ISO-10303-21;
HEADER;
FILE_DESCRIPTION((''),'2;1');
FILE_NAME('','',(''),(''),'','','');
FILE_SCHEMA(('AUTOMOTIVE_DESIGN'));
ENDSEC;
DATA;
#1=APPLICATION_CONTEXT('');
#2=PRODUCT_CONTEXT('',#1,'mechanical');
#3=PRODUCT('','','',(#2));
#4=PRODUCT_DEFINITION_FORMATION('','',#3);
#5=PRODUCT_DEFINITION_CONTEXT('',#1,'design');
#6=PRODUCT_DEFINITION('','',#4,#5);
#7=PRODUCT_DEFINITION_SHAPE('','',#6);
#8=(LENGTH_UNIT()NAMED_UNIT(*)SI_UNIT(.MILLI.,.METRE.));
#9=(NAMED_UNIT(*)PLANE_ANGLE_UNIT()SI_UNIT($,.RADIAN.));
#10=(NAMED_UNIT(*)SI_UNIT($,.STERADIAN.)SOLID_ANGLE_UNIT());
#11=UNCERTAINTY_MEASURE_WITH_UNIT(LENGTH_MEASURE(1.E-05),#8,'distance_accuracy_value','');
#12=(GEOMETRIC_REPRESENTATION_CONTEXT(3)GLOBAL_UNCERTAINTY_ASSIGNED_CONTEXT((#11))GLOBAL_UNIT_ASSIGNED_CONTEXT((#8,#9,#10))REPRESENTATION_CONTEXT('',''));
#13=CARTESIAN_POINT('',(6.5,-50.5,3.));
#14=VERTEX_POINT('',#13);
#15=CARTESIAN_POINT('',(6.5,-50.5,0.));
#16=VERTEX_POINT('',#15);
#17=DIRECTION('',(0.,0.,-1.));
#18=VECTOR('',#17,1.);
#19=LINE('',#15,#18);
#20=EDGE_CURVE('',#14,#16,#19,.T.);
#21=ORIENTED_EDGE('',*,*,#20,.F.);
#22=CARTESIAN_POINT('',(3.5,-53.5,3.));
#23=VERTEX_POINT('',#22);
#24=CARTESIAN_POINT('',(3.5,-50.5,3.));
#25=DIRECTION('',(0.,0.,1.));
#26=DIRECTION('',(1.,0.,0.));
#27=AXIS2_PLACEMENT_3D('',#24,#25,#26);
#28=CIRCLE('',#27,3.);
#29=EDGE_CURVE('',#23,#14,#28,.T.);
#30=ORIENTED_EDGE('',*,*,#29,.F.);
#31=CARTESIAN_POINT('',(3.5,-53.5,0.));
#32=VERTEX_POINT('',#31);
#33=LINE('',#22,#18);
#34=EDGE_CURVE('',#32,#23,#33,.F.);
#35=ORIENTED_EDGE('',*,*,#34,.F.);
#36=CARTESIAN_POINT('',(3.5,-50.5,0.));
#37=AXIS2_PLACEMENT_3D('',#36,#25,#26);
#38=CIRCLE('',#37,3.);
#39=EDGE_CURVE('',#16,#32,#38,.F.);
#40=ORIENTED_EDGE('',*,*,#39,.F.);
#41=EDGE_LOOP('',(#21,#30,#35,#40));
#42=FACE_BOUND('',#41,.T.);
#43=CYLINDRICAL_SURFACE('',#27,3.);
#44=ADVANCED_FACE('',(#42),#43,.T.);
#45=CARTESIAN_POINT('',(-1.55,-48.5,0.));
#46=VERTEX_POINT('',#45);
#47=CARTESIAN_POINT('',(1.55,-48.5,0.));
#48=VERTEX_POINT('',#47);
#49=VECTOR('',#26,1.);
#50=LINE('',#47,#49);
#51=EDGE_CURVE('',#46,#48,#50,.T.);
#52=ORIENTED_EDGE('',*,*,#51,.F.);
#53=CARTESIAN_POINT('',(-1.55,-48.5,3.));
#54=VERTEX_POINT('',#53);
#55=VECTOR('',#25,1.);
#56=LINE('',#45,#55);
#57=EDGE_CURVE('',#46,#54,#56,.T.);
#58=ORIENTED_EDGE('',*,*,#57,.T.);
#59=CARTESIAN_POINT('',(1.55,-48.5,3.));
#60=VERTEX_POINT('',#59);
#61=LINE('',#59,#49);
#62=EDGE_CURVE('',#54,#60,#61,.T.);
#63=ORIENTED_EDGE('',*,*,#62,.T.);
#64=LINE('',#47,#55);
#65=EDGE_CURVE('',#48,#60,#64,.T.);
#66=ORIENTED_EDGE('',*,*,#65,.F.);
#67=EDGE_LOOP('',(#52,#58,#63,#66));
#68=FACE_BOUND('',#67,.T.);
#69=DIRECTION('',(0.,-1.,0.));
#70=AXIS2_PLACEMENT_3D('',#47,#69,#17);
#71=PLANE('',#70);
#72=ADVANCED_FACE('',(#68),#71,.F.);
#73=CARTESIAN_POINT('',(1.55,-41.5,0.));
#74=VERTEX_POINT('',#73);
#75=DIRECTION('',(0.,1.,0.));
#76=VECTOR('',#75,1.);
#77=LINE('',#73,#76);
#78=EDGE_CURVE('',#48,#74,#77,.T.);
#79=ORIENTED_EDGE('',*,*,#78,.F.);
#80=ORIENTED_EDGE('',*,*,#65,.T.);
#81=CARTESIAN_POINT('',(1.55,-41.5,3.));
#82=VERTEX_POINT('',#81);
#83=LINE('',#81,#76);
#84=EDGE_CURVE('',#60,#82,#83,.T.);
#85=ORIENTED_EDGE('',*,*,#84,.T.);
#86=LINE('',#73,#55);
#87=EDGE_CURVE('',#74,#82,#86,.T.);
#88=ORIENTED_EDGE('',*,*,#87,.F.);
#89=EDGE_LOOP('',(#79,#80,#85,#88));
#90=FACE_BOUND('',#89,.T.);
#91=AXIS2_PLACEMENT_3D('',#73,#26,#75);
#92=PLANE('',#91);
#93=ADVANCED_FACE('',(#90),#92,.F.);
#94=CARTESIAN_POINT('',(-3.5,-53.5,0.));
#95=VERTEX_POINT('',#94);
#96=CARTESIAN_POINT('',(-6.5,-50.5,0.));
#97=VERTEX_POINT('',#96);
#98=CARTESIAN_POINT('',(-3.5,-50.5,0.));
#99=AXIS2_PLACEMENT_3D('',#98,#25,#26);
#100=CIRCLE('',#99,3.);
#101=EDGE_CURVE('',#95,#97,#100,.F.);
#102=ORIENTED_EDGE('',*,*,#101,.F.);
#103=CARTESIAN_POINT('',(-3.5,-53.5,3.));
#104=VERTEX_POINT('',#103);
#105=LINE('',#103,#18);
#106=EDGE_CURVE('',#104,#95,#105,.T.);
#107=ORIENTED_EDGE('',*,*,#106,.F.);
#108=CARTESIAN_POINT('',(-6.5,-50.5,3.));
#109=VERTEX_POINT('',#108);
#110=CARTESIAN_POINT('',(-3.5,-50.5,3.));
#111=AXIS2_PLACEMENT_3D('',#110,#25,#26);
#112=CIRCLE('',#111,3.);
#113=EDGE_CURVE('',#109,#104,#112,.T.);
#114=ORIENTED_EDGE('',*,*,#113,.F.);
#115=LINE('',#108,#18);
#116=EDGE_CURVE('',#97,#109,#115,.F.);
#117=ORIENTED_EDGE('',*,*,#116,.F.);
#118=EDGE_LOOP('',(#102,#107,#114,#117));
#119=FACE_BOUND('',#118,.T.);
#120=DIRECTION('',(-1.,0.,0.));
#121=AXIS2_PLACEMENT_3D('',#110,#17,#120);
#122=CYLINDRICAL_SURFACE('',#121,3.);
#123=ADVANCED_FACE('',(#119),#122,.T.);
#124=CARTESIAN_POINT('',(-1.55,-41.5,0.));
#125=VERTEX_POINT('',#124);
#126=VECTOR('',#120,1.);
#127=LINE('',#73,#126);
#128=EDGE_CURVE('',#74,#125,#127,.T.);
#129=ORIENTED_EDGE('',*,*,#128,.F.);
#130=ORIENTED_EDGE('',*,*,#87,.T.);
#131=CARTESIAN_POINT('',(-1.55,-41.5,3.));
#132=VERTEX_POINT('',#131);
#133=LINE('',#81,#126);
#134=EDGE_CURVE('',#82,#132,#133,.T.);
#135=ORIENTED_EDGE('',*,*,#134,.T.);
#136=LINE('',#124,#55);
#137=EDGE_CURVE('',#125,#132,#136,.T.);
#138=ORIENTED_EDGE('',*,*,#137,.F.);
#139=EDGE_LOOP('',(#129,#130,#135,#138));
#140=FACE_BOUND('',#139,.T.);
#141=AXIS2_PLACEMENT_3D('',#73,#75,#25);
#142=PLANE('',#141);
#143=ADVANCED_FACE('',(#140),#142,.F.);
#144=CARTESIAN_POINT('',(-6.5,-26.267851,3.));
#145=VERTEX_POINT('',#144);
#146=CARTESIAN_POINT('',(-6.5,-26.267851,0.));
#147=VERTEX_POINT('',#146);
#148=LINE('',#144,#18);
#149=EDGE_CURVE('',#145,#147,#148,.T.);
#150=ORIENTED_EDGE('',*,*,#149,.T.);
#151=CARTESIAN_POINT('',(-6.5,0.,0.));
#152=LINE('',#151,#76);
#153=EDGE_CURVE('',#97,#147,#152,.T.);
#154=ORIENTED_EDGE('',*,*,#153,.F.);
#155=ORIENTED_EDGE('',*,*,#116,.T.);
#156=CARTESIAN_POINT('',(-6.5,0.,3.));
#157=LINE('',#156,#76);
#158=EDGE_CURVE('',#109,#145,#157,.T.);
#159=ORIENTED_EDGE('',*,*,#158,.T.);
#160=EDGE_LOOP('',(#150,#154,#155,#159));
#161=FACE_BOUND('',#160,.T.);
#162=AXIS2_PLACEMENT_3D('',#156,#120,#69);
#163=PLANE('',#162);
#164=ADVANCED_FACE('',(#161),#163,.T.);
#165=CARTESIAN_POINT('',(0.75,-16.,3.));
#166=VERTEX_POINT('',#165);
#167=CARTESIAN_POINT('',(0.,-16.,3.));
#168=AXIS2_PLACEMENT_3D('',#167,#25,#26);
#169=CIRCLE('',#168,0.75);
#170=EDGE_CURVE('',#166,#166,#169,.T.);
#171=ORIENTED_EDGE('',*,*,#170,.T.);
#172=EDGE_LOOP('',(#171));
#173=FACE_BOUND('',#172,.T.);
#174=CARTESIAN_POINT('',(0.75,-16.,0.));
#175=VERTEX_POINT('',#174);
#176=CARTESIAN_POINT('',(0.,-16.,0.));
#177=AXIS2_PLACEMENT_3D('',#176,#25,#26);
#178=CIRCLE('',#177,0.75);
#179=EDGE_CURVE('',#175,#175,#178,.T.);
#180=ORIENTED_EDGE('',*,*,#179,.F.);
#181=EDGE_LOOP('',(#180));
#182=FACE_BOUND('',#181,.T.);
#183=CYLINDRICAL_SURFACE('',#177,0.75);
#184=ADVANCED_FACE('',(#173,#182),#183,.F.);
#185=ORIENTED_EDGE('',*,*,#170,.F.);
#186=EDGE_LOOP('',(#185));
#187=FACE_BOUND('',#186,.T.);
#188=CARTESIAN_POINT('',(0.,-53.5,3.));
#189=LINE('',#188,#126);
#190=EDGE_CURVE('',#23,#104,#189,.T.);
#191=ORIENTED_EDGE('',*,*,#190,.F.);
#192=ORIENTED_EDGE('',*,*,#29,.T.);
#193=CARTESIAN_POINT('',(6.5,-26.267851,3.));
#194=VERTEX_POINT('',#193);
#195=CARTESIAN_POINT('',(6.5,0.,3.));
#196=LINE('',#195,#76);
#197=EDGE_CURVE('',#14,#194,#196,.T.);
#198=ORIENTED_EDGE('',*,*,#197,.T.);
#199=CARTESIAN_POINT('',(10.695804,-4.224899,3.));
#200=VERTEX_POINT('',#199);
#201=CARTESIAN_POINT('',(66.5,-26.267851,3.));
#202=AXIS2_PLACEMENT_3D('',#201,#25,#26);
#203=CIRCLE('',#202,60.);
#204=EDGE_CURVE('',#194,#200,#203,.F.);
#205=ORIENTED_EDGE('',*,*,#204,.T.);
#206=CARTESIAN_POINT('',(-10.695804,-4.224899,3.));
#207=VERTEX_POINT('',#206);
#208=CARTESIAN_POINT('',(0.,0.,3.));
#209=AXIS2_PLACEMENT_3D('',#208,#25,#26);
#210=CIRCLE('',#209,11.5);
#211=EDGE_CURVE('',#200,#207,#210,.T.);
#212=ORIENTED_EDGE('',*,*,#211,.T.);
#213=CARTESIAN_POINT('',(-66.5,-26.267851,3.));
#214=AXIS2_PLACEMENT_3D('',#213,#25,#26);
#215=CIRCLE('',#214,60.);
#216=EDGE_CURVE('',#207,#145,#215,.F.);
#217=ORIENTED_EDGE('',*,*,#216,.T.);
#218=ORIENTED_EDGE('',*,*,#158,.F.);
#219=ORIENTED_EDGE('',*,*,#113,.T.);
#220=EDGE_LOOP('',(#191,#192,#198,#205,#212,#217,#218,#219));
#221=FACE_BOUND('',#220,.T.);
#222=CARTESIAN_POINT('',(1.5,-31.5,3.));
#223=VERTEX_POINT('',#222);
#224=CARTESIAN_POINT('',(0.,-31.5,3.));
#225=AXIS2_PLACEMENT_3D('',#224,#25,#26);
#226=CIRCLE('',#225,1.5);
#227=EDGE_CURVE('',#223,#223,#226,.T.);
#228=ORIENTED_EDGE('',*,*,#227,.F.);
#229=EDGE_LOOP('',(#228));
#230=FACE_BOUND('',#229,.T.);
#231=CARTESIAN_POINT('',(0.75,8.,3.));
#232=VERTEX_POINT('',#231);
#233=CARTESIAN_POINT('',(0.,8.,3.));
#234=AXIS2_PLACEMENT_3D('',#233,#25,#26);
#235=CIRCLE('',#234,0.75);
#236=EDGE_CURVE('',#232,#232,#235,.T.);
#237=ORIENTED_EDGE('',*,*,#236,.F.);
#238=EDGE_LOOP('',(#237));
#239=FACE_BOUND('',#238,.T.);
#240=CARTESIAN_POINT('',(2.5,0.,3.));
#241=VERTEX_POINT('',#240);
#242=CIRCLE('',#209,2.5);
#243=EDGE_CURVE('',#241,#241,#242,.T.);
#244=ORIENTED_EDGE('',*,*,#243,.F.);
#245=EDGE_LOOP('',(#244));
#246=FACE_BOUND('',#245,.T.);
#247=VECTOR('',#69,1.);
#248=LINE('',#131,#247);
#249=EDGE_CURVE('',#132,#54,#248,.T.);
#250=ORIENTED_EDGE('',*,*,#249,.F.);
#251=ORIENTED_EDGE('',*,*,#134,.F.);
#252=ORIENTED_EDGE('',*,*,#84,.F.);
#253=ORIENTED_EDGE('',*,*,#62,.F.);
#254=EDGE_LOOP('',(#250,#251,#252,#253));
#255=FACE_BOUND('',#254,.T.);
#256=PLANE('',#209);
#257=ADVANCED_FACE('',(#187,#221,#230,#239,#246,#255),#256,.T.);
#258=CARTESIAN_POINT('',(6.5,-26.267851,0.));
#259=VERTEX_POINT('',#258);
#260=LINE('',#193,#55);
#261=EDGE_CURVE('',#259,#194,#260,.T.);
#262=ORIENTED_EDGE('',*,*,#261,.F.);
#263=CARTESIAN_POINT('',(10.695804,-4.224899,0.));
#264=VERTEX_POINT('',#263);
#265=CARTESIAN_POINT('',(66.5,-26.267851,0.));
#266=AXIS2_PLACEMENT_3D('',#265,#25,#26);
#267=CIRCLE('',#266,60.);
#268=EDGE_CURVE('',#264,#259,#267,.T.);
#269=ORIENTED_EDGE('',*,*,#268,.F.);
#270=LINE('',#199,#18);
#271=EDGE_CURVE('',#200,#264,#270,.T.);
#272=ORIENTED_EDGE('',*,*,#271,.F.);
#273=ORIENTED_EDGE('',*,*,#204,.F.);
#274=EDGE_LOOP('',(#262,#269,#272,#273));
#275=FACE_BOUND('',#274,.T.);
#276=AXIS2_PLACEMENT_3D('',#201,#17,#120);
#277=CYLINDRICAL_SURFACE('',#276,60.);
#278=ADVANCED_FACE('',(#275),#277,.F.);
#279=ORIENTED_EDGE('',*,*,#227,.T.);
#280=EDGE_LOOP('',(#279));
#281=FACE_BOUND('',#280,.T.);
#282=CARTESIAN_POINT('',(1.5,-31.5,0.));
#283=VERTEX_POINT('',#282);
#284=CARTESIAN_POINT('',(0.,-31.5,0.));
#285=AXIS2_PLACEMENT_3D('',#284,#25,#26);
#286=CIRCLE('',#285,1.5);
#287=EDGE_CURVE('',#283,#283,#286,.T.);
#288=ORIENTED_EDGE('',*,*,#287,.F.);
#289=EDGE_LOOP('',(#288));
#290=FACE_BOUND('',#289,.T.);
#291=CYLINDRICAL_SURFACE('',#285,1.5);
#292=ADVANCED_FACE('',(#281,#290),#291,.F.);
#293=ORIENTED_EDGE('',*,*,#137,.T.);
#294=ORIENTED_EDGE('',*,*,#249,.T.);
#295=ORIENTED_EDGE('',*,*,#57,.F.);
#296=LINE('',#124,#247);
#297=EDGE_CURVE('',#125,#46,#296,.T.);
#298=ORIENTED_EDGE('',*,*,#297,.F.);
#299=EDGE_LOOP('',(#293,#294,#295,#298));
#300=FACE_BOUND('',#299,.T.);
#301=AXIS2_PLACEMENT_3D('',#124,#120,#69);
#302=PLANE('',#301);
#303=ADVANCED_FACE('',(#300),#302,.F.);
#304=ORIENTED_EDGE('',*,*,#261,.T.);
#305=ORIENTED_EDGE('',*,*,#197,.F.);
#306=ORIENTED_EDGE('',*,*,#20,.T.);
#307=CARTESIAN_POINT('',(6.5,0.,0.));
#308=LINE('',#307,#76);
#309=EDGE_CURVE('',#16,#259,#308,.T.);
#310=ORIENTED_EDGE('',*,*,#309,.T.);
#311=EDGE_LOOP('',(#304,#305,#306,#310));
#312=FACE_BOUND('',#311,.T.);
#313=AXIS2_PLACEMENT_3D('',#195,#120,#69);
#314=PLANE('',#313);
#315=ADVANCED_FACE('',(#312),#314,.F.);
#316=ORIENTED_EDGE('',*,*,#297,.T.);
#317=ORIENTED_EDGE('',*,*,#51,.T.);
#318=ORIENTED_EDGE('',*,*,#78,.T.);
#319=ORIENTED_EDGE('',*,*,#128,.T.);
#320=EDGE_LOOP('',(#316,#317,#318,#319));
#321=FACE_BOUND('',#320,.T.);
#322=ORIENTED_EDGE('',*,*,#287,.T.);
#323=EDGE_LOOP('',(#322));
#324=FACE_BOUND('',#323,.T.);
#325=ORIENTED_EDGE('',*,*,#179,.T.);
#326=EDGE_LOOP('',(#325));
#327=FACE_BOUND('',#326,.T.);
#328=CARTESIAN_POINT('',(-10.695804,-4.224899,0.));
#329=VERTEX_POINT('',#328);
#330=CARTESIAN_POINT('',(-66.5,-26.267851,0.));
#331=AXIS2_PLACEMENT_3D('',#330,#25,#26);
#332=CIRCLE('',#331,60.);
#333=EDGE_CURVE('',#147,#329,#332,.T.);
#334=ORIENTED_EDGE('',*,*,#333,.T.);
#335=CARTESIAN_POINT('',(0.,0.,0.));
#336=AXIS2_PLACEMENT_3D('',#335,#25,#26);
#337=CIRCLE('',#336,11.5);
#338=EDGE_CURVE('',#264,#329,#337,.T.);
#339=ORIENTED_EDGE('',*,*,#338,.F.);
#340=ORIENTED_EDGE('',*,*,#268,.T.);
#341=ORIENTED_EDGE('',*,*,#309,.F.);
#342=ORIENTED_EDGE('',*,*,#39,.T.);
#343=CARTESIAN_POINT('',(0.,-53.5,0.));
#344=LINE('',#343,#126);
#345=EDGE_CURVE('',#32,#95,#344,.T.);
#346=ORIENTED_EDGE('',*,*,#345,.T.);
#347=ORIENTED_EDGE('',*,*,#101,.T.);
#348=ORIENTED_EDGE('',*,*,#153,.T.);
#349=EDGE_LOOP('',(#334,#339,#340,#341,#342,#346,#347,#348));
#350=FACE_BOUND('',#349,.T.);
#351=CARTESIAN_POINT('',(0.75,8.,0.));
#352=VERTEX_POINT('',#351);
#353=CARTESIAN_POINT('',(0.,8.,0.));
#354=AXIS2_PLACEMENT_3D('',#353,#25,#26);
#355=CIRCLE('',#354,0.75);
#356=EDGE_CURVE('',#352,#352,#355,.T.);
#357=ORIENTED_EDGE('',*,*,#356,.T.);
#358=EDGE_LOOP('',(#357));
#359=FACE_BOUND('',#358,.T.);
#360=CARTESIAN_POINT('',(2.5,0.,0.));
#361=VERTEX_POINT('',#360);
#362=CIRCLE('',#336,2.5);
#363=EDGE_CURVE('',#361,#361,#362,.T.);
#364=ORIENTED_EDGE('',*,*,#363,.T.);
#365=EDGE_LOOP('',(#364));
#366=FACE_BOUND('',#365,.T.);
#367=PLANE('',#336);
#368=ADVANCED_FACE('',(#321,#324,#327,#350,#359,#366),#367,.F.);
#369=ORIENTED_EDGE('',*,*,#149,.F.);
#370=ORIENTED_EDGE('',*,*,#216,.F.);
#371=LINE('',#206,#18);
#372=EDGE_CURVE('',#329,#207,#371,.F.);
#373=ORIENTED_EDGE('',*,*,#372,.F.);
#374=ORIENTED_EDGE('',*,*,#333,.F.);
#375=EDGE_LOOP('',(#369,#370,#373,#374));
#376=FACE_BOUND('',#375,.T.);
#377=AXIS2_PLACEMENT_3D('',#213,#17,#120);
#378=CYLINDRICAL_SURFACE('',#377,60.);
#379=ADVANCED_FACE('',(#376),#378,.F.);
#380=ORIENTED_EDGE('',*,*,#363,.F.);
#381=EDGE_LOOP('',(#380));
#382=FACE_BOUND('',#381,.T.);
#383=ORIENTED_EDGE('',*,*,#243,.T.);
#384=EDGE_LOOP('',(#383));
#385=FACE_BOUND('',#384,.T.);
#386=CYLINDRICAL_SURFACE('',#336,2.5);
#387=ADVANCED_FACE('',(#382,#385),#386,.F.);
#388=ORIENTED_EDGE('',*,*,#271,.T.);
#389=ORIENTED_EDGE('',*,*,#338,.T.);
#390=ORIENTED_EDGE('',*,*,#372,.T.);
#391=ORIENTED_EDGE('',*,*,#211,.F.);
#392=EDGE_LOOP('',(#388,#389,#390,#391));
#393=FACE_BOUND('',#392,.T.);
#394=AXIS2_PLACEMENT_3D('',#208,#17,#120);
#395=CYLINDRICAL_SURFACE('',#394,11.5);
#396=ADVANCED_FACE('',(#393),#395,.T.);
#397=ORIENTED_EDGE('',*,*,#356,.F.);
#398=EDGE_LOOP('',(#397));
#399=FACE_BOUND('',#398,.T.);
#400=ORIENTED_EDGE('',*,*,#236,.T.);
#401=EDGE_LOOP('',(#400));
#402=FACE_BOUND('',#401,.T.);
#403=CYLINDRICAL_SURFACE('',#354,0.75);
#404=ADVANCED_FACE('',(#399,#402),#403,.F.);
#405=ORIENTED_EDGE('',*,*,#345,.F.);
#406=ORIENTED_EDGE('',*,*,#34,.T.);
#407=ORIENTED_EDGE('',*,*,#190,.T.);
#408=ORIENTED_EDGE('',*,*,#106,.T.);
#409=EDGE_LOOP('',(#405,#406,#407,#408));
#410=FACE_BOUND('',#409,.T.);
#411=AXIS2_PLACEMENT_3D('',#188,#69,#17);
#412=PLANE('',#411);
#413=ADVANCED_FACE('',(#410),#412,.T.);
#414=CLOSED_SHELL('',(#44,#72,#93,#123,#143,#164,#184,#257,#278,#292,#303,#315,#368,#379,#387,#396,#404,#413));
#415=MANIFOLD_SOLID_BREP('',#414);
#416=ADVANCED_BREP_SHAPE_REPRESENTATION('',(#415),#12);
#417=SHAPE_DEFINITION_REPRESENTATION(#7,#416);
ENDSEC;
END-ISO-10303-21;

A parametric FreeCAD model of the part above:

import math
import FreeCAD as App
import Part
import Sketcher
from FreeCAD import Vector
Q = App.Units.Quantity


def edges_at(feature, points):
    """Names of the edges that pass closest to the given points."""
    edges = feature.Shape.Edges
    near = lambda p: min(range(len(edges)), key=lambda i: edges[i].distToShape(Part.Vertex(*p))[0])
    return sorted({f"Edge{near(p) + 1}" for p in points})

doc = App.newDocument("Part")
params = doc.addObject("Spreadsheet::Sheet", "Params")
for row, (alias, value) in enumerate([
    ("sketch1_radius", "11.5 mm"),
    ("sketch1_width", "13 mm"),
    ("pad1_length", "3 mm"),
    ("sketch2_diameter", "5 mm"),
    ("sketch2_diameter2", "3 mm"),
    ("sketch2_height", "7 mm"),
    ("sketch2_width", "3.1 mm"),
    ("pocket1_length", "3 mm"),
    ("fillet_radius", "60 mm"),
    ("fillet2_radius", "3 mm"),
    ("sketch3_diameter", "1.5 mm"),
    ("pocket2_length", "3 mm"),
], start=1):
    params.set(f"A{row}", alias)
    params.set(f"B{row}", "=" + value)
    params.setAlias(f"B{row}", alias)

body = doc.addObject("PartDesign::Body", "Body")

sketch1 = body.newObject("Sketcher::SketchObject", "Sketch")
sketch1.AttachmentSupport = (doc.getObject("XY_Plane"), [""])
sketch1.MapMode = "FlatFace"
sketch1.addGeometry([
    Part.LineSegment(Vector(6, -54, 0), Vector(6, -9, 0)),
    Part.ArcOfCircle(Part.Circle(Vector(0, 0, 0), Vector(0, 0, 1), 12), math.radians(-56), math.radians(0)),
    Part.ArcOfCircle(Part.Circle(Vector(0, 0, 0), Vector(0, 0, 1), 12), math.radians(0), math.radians(236)),
    Part.LineSegment(Vector(-6, -9, 0), Vector(-6, -54, 0)),
    Part.LineSegment(Vector(-6, -54, 0), Vector(6, -54, 0)),
], False)
sketch1.addConstraint([
    Sketcher.Constraint("Coincident", 0, 2, 1, 1),
    Sketcher.Constraint("Tangent", 1, 2, 2, 1),
    Sketcher.Constraint("Coincident", 2, 2, 3, 1),
    Sketcher.Constraint("Coincident", 3, 2, 4, 1),
    Sketcher.Constraint("Coincident", 4, 2, 0, 1),
    Sketcher.Constraint("Vertical", 0),
    Sketcher.Constraint("Vertical", 3),
    Sketcher.Constraint("Horizontal", 4),
    Sketcher.Constraint("Coincident", 1, 3, -1, 1),
    Sketcher.Constraint("Equal", 1, 2),
    Sketcher.Constraint("PointOnObject", 1, 2, -1),
    Sketcher.Constraint("Horizontal", 0, 2, 2, 2),
    Sketcher.Constraint("Radius", 1, Q("11.5 mm")),
    Sketcher.Constraint("DistanceX", 4, 1, 4, 2, Q("13 mm")),
    Sketcher.Constraint("DistanceY", 3, 2, -1, 1, Q("53.5 mm")),
])
sketch1.setExpression("Constraints[12]", "Params.sketch1_radius")
sketch1.setExpression("Constraints[13]", "Params.sketch1_width")
pad1 = body.newObject("PartDesign::Pad", "Pad")
pad1.Profile = sketch1
pad1.setExpression("Length", "Params.pad1_length")

sketch2 = body.newObject("Sketcher::SketchObject", "Sketch001")
sketch2.AttachmentSupport = (doc.getObject("XY_Plane"), [""])
sketch2.MapMode = "FlatFace"
sketch2.AttachmentOffset = App.Placement(Vector(0, 0, 3), App.Rotation())
sketch2.addGeometry([
    Part.Circle(Vector(0, 0, 0), Vector(0, 0, 1), 2.5),
    Part.Circle(Vector(0, -31.5, 0), Vector(0, 0, 1), 1.5),
    Part.LineSegment(Vector(-1.6, -41.5, 0), Vector(-1.6, -48.5, 0)),
    Part.LineSegment(Vector(-1.6, -48.5, 0), Vector(1.6, -48.5, 0)),
    Part.LineSegment(Vector(1.6, -48.5, 0), Vector(1.6, -41.5, 0)),
    Part.LineSegment(Vector(1.6, -41.5, 0), Vector(-1.6, -41.5, 0)),
], False)
sketch2.addConstraint([
    Sketcher.Constraint("Coincident", 2, 2, 3, 1),
    Sketcher.Constraint("Coincident", 3, 2, 4, 1),
    Sketcher.Constraint("Coincident", 4, 2, 5, 1),
    Sketcher.Constraint("Coincident", 5, 2, 2, 1),
    Sketcher.Constraint("Vertical", 2),
    Sketcher.Constraint("Horizontal", 3),
    Sketcher.Constraint("Vertical", 4),
    Sketcher.Constraint("Horizontal", 5),
    Sketcher.Constraint("Coincident", 0, 3, -1, 1),
    Sketcher.Constraint("PointOnObject", 1, 3, -2),
    Sketcher.Constraint("Diameter", 0, Q("5 mm")),
    Sketcher.Constraint("Diameter", 1, Q("3 mm")),
    Sketcher.Constraint("DistanceY", 2, 2, 2, 1, Q("7 mm")),
    Sketcher.Constraint("DistanceX", 3, 1, 3, 2, Q("3.1 mm")),
    Sketcher.Constraint("DistanceY", 2, 2, 1, 3, Q("17 mm")),
    Sketcher.Constraint("DistanceY", 1, 3, -1, 1, Q("31.5 mm")),
    Sketcher.Constraint("DistanceX", 2, 2, -1, 1, Q("1.55 mm")),
])
sketch2.setExpression("Constraints[10]", "Params.sketch2_diameter")
sketch2.setExpression("Constraints[11]", "Params.sketch2_diameter2")
sketch2.setExpression("Constraints[12]", "Params.sketch2_height")
sketch2.setExpression("Constraints[13]", "Params.sketch2_width")
pocket1 = body.newObject("PartDesign::Pocket", "Pocket")
pocket1.Profile = sketch2
pocket1.setExpression("Length", "Params.pocket1_length")
doc.recompute()

fillet = body.newObject("PartDesign::Fillet", "Fillet")
fillet.Base = (pocket1, edges_at(pocket1, [(-6.5, -9.487, 1.5), (6.5, -9.487, 1.5)]))
fillet.setExpression("Radius", "Params.fillet_radius")
doc.recompute()

fillet2 = body.newObject("PartDesign::Fillet", "Fillet001")
fillet2.Base = (fillet, edges_at(fillet, [(6.5, -53.5, 1.5), (-6.5, -53.5, 1.5)]))
fillet2.setExpression("Radius", "Params.fillet2_radius")

sketch3 = body.newObject("Sketcher::SketchObject", "Sketch002")
sketch3.AttachmentSupport = (doc.getObject("XY_Plane"), [""])
sketch3.MapMode = "FlatFace"
sketch3.AttachmentOffset = App.Placement(Vector(0, 0, 3), App.Rotation())
sketch3.addGeometry([
    Part.Circle(Vector(0, 8, 0), Vector(0, 0, 1), 0.8),
    Part.Circle(Vector(0, -16, 0), Vector(0, 0, 1), 0.8),
], False)
sketch3.addConstraint([
    Sketcher.Constraint("Equal", 0, 1),
    Sketcher.Constraint("PointOnObject", 0, 3, -2),
    Sketcher.Constraint("PointOnObject", 1, 3, -2),
    Sketcher.Constraint("Diameter", 0, Q("1.5 mm")),
    Sketcher.Constraint("DistanceY", -1, 1, 0, 3, Q("8 mm")),
    Sketcher.Constraint("DistanceY", 1, 3, -1, 1, Q("16 mm")),
])
sketch3.setExpression("Constraints[3]", "Params.sketch3_diameter")
pocket2 = body.newObject("PartDesign::Pocket", "Pocket001")
pocket2.Profile = sketch3
pocket2.setExpression("Length", "Params.pocket2_length")

doc.recompute()
